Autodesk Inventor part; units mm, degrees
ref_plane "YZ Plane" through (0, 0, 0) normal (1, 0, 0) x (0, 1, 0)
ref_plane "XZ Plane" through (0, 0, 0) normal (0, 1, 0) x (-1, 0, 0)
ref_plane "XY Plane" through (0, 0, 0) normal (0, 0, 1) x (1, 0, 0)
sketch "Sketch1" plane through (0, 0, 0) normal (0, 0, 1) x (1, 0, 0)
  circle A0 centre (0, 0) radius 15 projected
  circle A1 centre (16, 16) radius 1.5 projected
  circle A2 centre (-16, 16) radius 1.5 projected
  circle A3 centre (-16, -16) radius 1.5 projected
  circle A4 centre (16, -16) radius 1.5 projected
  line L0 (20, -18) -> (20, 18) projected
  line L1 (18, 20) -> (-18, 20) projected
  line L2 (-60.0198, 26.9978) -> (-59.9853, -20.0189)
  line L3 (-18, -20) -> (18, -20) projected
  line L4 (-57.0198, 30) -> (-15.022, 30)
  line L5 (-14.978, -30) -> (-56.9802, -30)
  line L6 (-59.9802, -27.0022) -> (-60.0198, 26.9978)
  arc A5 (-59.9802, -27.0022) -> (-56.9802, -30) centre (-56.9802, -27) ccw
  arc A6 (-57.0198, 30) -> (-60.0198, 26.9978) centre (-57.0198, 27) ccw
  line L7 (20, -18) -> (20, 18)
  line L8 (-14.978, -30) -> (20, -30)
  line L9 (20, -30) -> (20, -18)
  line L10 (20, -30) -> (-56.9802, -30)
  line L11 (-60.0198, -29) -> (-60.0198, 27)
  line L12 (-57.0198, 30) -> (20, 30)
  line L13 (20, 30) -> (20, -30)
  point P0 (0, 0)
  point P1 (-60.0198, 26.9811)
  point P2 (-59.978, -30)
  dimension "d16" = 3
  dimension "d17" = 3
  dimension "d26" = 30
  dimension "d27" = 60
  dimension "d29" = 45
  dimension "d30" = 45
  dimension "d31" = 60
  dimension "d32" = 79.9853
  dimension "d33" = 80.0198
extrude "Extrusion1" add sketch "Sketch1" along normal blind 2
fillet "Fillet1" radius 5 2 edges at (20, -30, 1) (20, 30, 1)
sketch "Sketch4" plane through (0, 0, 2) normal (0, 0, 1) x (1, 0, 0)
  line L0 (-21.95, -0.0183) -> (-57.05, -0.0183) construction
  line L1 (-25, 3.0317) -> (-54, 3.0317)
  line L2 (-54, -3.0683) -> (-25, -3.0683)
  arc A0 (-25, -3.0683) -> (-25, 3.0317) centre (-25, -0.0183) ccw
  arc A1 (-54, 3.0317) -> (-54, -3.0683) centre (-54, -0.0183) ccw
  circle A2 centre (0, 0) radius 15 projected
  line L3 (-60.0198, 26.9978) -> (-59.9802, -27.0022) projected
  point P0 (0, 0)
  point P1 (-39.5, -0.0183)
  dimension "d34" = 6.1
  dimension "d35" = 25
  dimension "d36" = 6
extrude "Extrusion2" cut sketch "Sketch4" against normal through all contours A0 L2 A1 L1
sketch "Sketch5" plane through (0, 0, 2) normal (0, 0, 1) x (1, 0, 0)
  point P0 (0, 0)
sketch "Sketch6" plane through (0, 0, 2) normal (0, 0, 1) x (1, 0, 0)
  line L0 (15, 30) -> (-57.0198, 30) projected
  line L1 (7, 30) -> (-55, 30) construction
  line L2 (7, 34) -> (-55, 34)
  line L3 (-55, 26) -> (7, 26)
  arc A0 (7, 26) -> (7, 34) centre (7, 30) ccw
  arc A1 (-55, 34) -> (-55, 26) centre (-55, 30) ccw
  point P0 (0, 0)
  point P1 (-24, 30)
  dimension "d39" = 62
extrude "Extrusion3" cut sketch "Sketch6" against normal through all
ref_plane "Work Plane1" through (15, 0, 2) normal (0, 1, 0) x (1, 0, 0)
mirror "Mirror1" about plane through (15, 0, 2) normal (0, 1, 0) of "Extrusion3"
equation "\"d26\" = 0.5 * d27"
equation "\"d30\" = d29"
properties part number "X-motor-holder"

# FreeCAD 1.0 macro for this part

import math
import FreeCAD as App
import Part
import Sketcher


def edges_at(feature, points):
    """Names of the edges that pass closest to the given points."""
    edges = feature.Shape.Edges
    near = lambda p: min(range(len(edges)), key=lambda i: edges[i].distToShape(Part.Vertex(*p))[0])
    return sorted({f"Edge{near(p) + 1}" for p in points})

doc = App.newDocument("Part")
body = doc.addObject("PartDesign::Body", "Body")

# Sketch on XY plane
sketch1 = body.newObject("Sketcher::SketchObject", "Sketch")
sketch1.AttachmentSupport = (doc.getObject("XY_Plane"), [""])
sketch1.MapMode = "FlatFace"
sketch1.addGeometry(Part.LineSegment(App.Vector(20, -30, 0), App.Vector(20, 30, 0)), False)
sketch1.addGeometry(Part.LineSegment(App.Vector(20, 30, 0), App.Vector(-57.0198, 30, 0)), False)
sketch1.addGeometry(Part.ArcOfCircle(Part.Circle(App.Vector(-57.0198, 27, 0), App.Vector(0, 0, 1), 3), math.radians(90), math.radians(180.042017)), False)
sketch1.addGeometry(Part.LineSegment(App.Vector(-60.0198, 26.9978, 0), App.Vector(-59.9853, -20.0189, 0)), False)
sketch1.addGeometry(Part.LineSegment(App.Vector(-59.985321, -20.0189, 0), App.Vector(-59.9802, -27.0022, 0)), False)
sketch1.addGeometry(Part.ArcOfCircle(Part.Circle(App.Vector(-56.9802, -27, 0), App.Vector(0, 0, 1), 3.000001), math.radians(-179.957983), math.radians(-90)), False)
sketch1.addGeometry(Part.LineSegment(App.Vector(-56.9802, -30, 0), App.Vector(20, -30, 0)), False)
sketch1.addGeometry(Part.Circle(App.Vector(-16, -16, 0), App.Vector(0, 0, 1), 1.5), False)
sketch1.addGeometry(Part.Circle(App.Vector(16, -16, 0), App.Vector(0, 0, 1), 1.5), False)
sketch1.addGeometry(Part.Circle(App.Vector(0, 0, 0), App.Vector(0, 0, 1), 15), False)
sketch1.addGeometry(Part.Circle(App.Vector(-16, 16, 0), App.Vector(0, 0, 1), 1.5), False)
sketch1.addGeometry(Part.Circle(App.Vector(16, 16, 0), App.Vector(0, 0, 1), 1.5), False)
sketch1.addConstraint(Sketcher.Constraint("Coincident", 0, 2, 1, 1))
sketch1.addConstraint(Sketcher.Constraint("Tangent", 1, 2, 2, 1))
sketch1.addConstraint(Sketcher.Constraint("Tangent", 2, 2, 3, 1))
sketch1.addConstraint(Sketcher.Constraint("Coincident", 3, 2, 4, 1))
sketch1.addConstraint(Sketcher.Constraint("Tangent", 4, 2, 5, 1))
sketch1.addConstraint(Sketcher.Constraint("Tangent", 5, 2, 6, 1))
sketch1.addConstraint(Sketcher.Constraint("Coincident", 6, 2, 0, 1))
sketch1.addConstraint(Sketcher.Constraint("Vertical", 0))
sketch1.addConstraint(Sketcher.Constraint("Horizontal", 1))
sketch1.addConstraint(Sketcher.Constraint("Horizontal", 6))
sketch1.addConstraint(Sketcher.Constraint("Coincident", 9, 3, -1, 1))
sketch1.addConstraint(Sketcher.Constraint("Equal", 2, 5))
sketch1.addConstraint(Sketcher.Constraint("Equal", 7, 8))
sketch1.addConstraint(Sketcher.Constraint("Equal", 8, 10))
sketch1.addConstraint(Sketcher.Constraint("Equal", 10, 11))
sketch1.addConstraint(Sketcher.Constraint("Symmetric", 8, 3, 10, 3, -1, 1))
sketch1.addConstraint(Sketcher.Constraint("Symmetric", 7, 3, 11, 3, -1, 1))
sketch1.addConstraint(Sketcher.Constraint("Symmetric", 7, 3, 8, 3, -2))
sketch1.addConstraint(Sketcher.Constraint("Parallel", 3, 4))
sketch1.addConstraint(Sketcher.Constraint("Diameter", 7, 3.0))
sketch1.addConstraint(Sketcher.Constraint("Diameter", 9, 30.0))
sketch1.addConstraint(Sketcher.Constraint("Radius", 2, 3.0))
sketch1.addConstraint(Sketcher.Constraint("DistanceY", 0, 1, 0, 2, 60.0))
sketch1.addConstraint(Sketcher.Constraint("DistanceY", -1, 1, 0, 2, 30.0))
sketch1.addConstraint(Sketcher.Constraint("DistanceX", 7, 3, -1, 1, 16.0))
sketch1.addConstraint(Sketcher.Constraint("DistanceY", 7, 3, -1, 1, 16.0))
sketch1.addConstraint(Sketcher.Constraint("DistanceX", -1, 1, 0, 2, 20.0))
sketch1.addConstraint(Sketcher.Constraint("DistanceX", 1, 2, 1, 1, 77.0198))
sketch1.addConstraint(Sketcher.Constraint("DistanceX", 6, 1, 6, 2, 76.9802))
sketch1.addConstraint(Sketcher.Constraint("DistanceY", 3, 2, -1, 1, 20.019))
pad1 = body.newObject("PartDesign::Pad", "Pad")
pad1.Profile = sketch1
pad1.Length = 2
doc.recompute()

fillet = body.newObject("PartDesign::Fillet", "Fillet")
fillet.Base = (pad1, edges_at(pad1, [(20, -30, 1), (20, 30, 1)]))
fillet.Radius = 5

# Sketch on XY plane
sketch2 = body.newObject("Sketcher::SketchObject", "Sketch001")
sketch2.AttachmentSupport = (doc.getObject("XY_Plane"), [""])
sketch2.MapMode = "FlatFace"
sketch2.AttachmentOffset = App.Placement(App.Vector(0, 0, 2), App.Rotation())
sketch2.addGeometry(Part.ArcOfCircle(Part.Circle(App.Vector(-25, -0.0183, 0), App.Vector(0, 0, 1), 3.05), math.radians(-90), math.radians(90)), False)
sketch2.addGeometry(Part.LineSegment(App.Vector(-25, 3.0317, 0), App.Vector(-54, 3.0317, 0)), False)
sketch2.addGeometry(Part.ArcOfCircle(Part.Circle(App.Vector(-54, -0.0183, 0), App.Vector(0, 0, 1), 3.05), math.radians(90), math.radians(270)), False)
sketch2.addGeometry(Part.LineSegment(App.Vector(-54, -3.0683, 0), App.Vector(-25, -3.0683, 0)), False)
sketch2.addConstraint(Sketcher.Constraint("Tangent", 0, 2, 1, 1))
sketch2.addConstraint(Sketcher.Constraint("Tangent", 1, 2, 2, 1))
sketch2.addConstraint(Sketcher.Constraint("Tangent", 2, 2, 3, 1))
sketch2.addConstraint(Sketcher.Constraint("Tangent", 3, 2, 0, 1))
sketch2.addConstraint(Sketcher.Constraint("Horizontal", 1))
sketch2.addConstraint(Sketcher.Constraint("Horizontal", 3))
sketch2.addConstraint(Sketcher.Constraint("Radius", 0, 3.05))
sketch2.addConstraint(Sketcher.Constraint("DistanceX", 0, 3, -1, 1, 25.0))
sketch2.addConstraint(Sketcher.Constraint("DistanceX", 1, 2, 1, 1, 29.0))
sketch2.addConstraint(Sketcher.Constraint("DistanceY", 0, 3, -1, 1, 0.0183))
pocket1 = body.newObject("PartDesign::Pocket", "Pocket")
pocket1.Profile = sketch2
pocket1.Type = "ThroughAll"

# Sketch on XY plane
sketch3 = body.newObject("Sketcher::SketchObject", "Sketch002")
sketch3.AttachmentSupport = (doc.getObject("XY_Plane"), [""])
sketch3.MapMode = "FlatFace"
sketch3.AttachmentOffset = App.Placement(App.Vector(0, 0, 2), App.Rotation())
sketch3.addGeometry(Part.ArcOfCircle(Part.Circle(App.Vector(7, 30, 0), App.Vector(0, 0, 1), 4), math.radians(-90), math.radians(90)), False)
sketch3.addGeometry(Part.LineSegment(App.Vector(7, 34, 0), App.Vector(-55, 34, 0)), False)
sketch3.addGeometry(Part.ArcOfCircle(Part.Circle(App.Vector(-55, 30, 0), App.Vector(0, 0, 1), 4), math.radians(90), math.radians(270)), False)
sketch3.addGeometry(Part.LineSegment(App.Vector(-55, 26, 0), App.Vector(7, 26, 0)), False)
sketch3.addConstraint(Sketcher.Constraint("Tangent", 0, 2, 1, 1))
sketch3.addConstraint(Sketcher.Constraint("Tangent", 1, 2, 2, 1))
sketch3.addConstraint(Sketcher.Constraint("Tangent", 2, 2, 3, 1))
sketch3.addConstraint(Sketcher.Constraint("Tangent", 3, 2, 0, 1))
sketch3.addConstraint(Sketcher.Constraint("Horizontal", 1))
sketch3.addConstraint(Sketcher.Constraint("Horizontal", 3))
sketch3.addConstraint(Sketcher.Constraint("DistanceX", 1, 2, 1, 1, 62.0))
sketch3.addConstraint(Sketcher.Constraint("Radius", 0, 4.0))
sketch3.addConstraint(Sketcher.Constraint("DistanceX", -1, 1, 0, 3, 7.0))
sketch3.addConstraint(Sketcher.Constraint("DistanceY", -1, 1, 0, 3, 30.0))
pocket2 = body.newObject("PartDesign::Pocket", "Pocket001")
pocket2.Profile = sketch3
pocket2.Type = "ThroughAll"
doc.recompute()

mirrored = body.newObject("PartDesign::Mirrored", "Mirrored")
mirrored.Originals = [pocket2]
mirrored.MirrorPlane = (doc.getObject("XZ_Plane"), [""])
body.Tip = mirrored

doc.recompute()
